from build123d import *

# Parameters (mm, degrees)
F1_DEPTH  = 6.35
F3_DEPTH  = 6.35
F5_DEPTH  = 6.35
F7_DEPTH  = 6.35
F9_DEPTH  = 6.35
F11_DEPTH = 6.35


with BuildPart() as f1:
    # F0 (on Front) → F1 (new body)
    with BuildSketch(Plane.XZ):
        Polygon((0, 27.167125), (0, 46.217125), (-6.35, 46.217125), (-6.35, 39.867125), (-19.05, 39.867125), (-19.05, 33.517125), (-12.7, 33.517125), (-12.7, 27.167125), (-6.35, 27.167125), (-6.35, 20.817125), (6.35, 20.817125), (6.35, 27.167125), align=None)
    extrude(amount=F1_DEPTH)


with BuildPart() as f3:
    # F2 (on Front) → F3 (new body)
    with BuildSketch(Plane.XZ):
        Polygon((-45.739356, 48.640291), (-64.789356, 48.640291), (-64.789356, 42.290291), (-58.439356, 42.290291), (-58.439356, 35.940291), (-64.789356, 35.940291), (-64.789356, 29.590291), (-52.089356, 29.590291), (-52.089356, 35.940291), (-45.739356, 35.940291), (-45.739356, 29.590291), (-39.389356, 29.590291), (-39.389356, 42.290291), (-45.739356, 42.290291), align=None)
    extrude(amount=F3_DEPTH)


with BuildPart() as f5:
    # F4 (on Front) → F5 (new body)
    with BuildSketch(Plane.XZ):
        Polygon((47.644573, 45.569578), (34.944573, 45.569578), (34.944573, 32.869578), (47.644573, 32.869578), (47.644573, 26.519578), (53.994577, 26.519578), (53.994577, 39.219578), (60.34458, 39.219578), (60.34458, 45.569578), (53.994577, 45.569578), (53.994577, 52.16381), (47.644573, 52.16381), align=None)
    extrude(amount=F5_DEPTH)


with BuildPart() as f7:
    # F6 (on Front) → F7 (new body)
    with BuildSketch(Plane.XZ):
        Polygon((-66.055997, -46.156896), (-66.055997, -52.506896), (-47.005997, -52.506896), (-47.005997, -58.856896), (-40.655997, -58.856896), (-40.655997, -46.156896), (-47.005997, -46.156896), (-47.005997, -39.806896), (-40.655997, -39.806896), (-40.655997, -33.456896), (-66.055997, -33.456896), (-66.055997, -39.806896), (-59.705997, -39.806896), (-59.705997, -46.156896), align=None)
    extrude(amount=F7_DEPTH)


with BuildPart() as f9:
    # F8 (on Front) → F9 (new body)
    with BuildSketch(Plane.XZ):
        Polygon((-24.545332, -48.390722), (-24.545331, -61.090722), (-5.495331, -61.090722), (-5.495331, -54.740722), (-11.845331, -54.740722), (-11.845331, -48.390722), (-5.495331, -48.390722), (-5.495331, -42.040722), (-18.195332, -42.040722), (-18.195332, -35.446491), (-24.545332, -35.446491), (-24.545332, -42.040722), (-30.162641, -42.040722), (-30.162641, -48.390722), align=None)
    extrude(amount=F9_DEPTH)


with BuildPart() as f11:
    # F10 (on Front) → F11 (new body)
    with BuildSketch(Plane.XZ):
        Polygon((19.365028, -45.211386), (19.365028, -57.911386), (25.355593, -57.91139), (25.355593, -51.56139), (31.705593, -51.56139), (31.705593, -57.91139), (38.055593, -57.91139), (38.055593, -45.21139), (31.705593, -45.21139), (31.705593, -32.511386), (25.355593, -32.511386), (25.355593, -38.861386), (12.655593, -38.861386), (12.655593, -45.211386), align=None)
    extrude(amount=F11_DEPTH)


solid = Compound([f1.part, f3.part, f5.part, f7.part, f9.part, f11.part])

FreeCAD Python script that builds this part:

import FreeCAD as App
import Part
import Sketcher
from FreeCAD import Vector
Q = App.Units.Quantity


def add_polygon(sketch, points):
    """Adds a closed chain of lines whose ends are joined by coincident constraints."""
    first, n = sketch.GeometryCount, len(points)
    for a, b in zip(points, points[1:] + points[:1]):
        sketch.addGeometry(Part.LineSegment(App.Vector(*a, 0), App.Vector(*b, 0)), False)
    for i in range(n):
        sketch.addConstraint(Sketcher.Constraint("Coincident", first + i, 2, first + (i + 1) % n, 1))

doc = App.newDocument("Part")
body = doc.addObject("PartDesign::Body", "Body")

# Sketch on XZ plane
sketch1 = body.newObject("Sketcher::SketchObject", "Sketch")
sketch1.AttachmentSupport = (doc.getObject("XZ_Plane"), [""])
sketch1.MapMode = "FlatFace"
add_polygon(sketch1, [(0, 27), (0, 46), (-6, 46), (-6, 40), (-19, 40), (-19, 34), (-13, 34), (-13, 27), (-6, 27), (-6, 21), (6, 21), (6, 27)])  # lines 0-11
sketch1.addConstraint([
    Sketcher.Constraint("Vertical", 0),
    Sketcher.Constraint("Horizontal", 1),
    Sketcher.Constraint("Vertical", 2),
    Sketcher.Constraint("Horizontal", 3),
    Sketcher.Constraint("Vertical", 4),
    Sketcher.Constraint("Horizontal", 5),
    Sketcher.Constraint("Vertical", 6),
    Sketcher.Constraint("Horizontal", 7),
    Sketcher.Constraint("Vertical", 8),
    Sketcher.Constraint("Horizontal", 9),
    Sketcher.Constraint("Vertical", 10),
    Sketcher.Constraint("Horizontal", 11),
    Sketcher.Constraint("Symmetric", 7, 2, 10, 2, -2),
    Sketcher.Constraint("PointOnObject", 0, 2, -2),
    Sketcher.Constraint("Vertical", 2, 2, 7, 2),
    Sketcher.Constraint("Equal", 1, 5),
    Sketcher.Constraint("Equal", 5, 7),
    Sketcher.Constraint("Equal", 11, 2),
    Sketcher.Constraint("Equal", 2, 4),
    Sketcher.Constraint("Equal", 4, 6),
    Sketcher.Constraint("Equal", 6, 8),
    Sketcher.Constraint("DistanceX", 3, 2, 3, 1, Q("0.5 in")),
    Sketcher.Constraint("DistanceY", -1, 1, 0, 2, Q("46.217125 mm")),
])
pad1 = body.newObject("PartDesign::Pad", "Pad")
pad1.Profile = sketch1
pad1.Length = Q("0.25 in")
body2 = doc.addObject("PartDesign::Body", "Body001")

# Sketch on XZ plane
sketch2 = body2.newObject("Sketcher::SketchObject", "Sketch001")
sketch2.AttachmentSupport = (doc.getObject("XZ_Plane001"), [""])
sketch2.MapMode = "FlatFace"
add_polygon(sketch2, [(-46, 49), (-65, 49), (-65, 42), (-58, 42), (-58, 36), (-65, 36), (-65, 30), (-52, 30), (-52, 36), (-46, 36), (-46, 30), (-39, 30), (-39, 42), (-46, 42)])  # lines 0-13
sketch2.addConstraint([
    Sketcher.Constraint("Horizontal", 0),
    Sketcher.Constraint("Vertical", 1),
    Sketcher.Constraint("Horizontal", 2),
    Sketcher.Constraint("Vertical", 3),
    Sketcher.Constraint("Horizontal", 4),
    Sketcher.Constraint("Vertical", 5),
    Sketcher.Constraint("Horizontal", 6),
    Sketcher.Constraint("Vertical", 7),
    Sketcher.Constraint("Horizontal", 8),
    Sketcher.Constraint("Vertical", 9),
    Sketcher.Constraint("Horizontal", 10),
    Sketcher.Constraint("Vertical", 11),
    Sketcher.Constraint("Horizontal", 12),
    Sketcher.Constraint("Vertical", 13),
    Sketcher.Constraint("Horizontal", 4, 2, 7, 2),
    Sketcher.Constraint("Horizontal", 6, 2, 9, 2),
    Sketcher.Constraint("Horizontal", 2, 2, 11, 2),
    Sketcher.Constraint("Vertical", 1, 2, 4, 2),
    Sketcher.Constraint("Vertical", 9, 2, 12, 2),
    Sketcher.Constraint("Equal", 4, 8),
    Sketcher.Constraint("Equal", 8, 10),
    Sketcher.Constraint("Equal", 12, 1),
    Sketcher.Constraint("Equal", 1, 3),
    Sketcher.Constraint("Equal", 3, 5),
    Sketcher.Constraint("Equal", 6, 11),
    Sketcher.Constraint("DistanceX", 6, 1, 6, 2, Q("0.5 in")),
    Sketcher.Constraint("DistanceY", -1, 1, 0, 2, Q("48.640291 mm")),
    Sketcher.Constraint("DistanceX", 0, 2, -1, 1, Q("64.789356 mm")),
])
pad2 = body2.newObject("PartDesign::Pad", "Pad001")
pad2.Profile = sketch2
pad2.Length = Q("0.25 in")
body3 = doc.addObject("PartDesign::Body", "Body002")

# Sketch on XZ plane
sketch3 = body3.newObject("Sketcher::SketchObject", "Sketch002")
sketch3.AttachmentSupport = (doc.getObject("XZ_Plane002"), [""])
sketch3.MapMode = "FlatFace"
add_polygon(sketch3, [(48, 46), (35, 46), (35, 33), (48, 33), (48, 27), (54, 27), (54, 39), (60, 39), (60, 46), (54, 46), (54, 52), (48, 52)])  # lines 0-11
sketch3.addConstraint([
    Sketcher.Constraint("Horizontal", 0),
    Sketcher.Constraint("Vertical", 1),
    Sketcher.Constraint("Horizontal", 2),
    Sketcher.Constraint("Vertical", 3),
    Sketcher.Constraint("Horizontal", 4),
    Sketcher.Constraint("Vertical", 5),
    Sketcher.Constraint("Horizontal", 6),
    Sketcher.Constraint("Vertical", 7),
    Sketcher.Constraint("Horizontal", 8),
    Sketcher.Constraint("Vertical", 9),
    Sketcher.Constraint("Horizontal", 10),
    Sketcher.Constraint("Vertical", 11),
    Sketcher.Constraint("Horizontal", 0, 2, 7, 2),
    Sketcher.Constraint("Vertical", 5, 2, 8, 2),
    Sketcher.Constraint("Vertical", 3, 2, 10, 2),
    Sketcher.Constraint("Equal", 4, 6),
    Sketcher.Constraint("Equal", 2, 1),
    Sketcher.Constraint("Equal", 1, 5),
    Sketcher.Constraint("DistanceX", 0, 2, 0, 1, Q("0.5 in")),
    Sketcher.Constraint("DistanceX", 4, 1, 4, 2, Q("0.2500002 in")),
    Sketcher.Constraint("DistanceY", 3, 2, 3, 1, Q("0.25 in")),
    Sketcher.Constraint("DistanceY", 9, 1, 9, 2, Q("6.594232 mm")),
    Sketcher.Constraint("DistanceX", -1, 1, 6, 2, Q("60.34458 mm")),
    Sketcher.Constraint("DistanceY", -1, 1, 9, 2, Q("52.16381 mm")),
])
pad3 = body3.newObject("PartDesign::Pad", "Pad002")
pad3.Profile = sketch3
pad3.Length = Q("0.25 in")
body4 = doc.addObject("PartDesign::Body", "Body003")

# Sketch on XZ plane
sketch4 = body4.newObject("Sketcher::SketchObject", "Sketch003")
sketch4.AttachmentSupport = (doc.getObject("XZ_Plane003"), [""])
sketch4.MapMode = "FlatFace"
add_polygon(sketch4, [(-66, -46), (-66, -53), (-47, -53), (-47, -59), (-41, -59), (-41, -46), (-47, -46), (-47, -40), (-41, -40), (-41, -33), (-66, -33), (-66, -40), (-60, -40), (-60, -46)])  # lines 0-13
sketch4.addConstraint([
    Sketcher.Constraint("Vertical", 0),
    Sketcher.Constraint("Horizontal", 1),
    Sketcher.Constraint("Vertical", 2),
    Sketcher.Constraint("Horizontal", 3),
    Sketcher.Constraint("Vertical", 4),
    Sketcher.Constraint("Horizontal", 5),
    Sketcher.Constraint("Vertical", 6),
    Sketcher.Constraint("Horizontal", 7),
    Sketcher.Constraint("Vertical", 8),
    Sketcher.Constraint("Horizontal", 9),
    Sketcher.Constraint("Vertical", 10),
    Sketcher.Constraint("Horizontal", 11),
    Sketcher.Constraint("Vertical", 12),
    Sketcher.Constraint("Horizontal", 13),
    Sketcher.Constraint("Horizontal", 7, 2, 10, 2),
    Sketcher.Constraint("Horizontal", 5, 2, 12, 2),
    Sketcher.Constraint("Vertical", 2, 2, 5, 2),
    Sketcher.Constraint("Vertical", 4, 2, 7, 2),
    Sketcher.Constraint("Vertical", 0, 2, 9, 2),
    Sketcher.Constraint("Equal", 7, 11),
    Sketcher.Constraint("Equal", 13, 0),
    Sketcher.Constraint("Equal", 0, 2),
    Sketcher.Constraint("Equal", 2, 6),
    Sketcher.Constraint("Equal", 6, 8),
    Sketcher.Constraint("DistanceX", 9, 2, 9, 1, Q("1 in")),
    Sketcher.Constraint("DistanceY", 4, 1, 4, 2, Q("0.5 in")),
    Sketcher.Constraint("DistanceX", 0, 2, -1, 1, Q("66.055997 mm")),
    Sketcher.Constraint("DistanceY", 0, 2, -1, 1, Q("52.506896 mm")),
])
pad4 = body4.newObject("PartDesign::Pad", "Pad003")
pad4.Profile = sketch4
pad4.Length = Q("0.25 in")
body5 = doc.addObject("PartDesign::Body", "Body004")

# Sketch on XZ plane
sketch5 = body5.newObject("Sketcher::SketchObject", "Sketch004")
sketch5.AttachmentSupport = (doc.getObject("XZ_Plane004"), [""])
sketch5.MapMode = "FlatFace"
add_polygon(sketch5, [(-25, -48), (-25, -61), (-5, -61), (-5, -55), (-12, -55), (-12, -48), (-5, -48), (-5, -42), (-18, -42), (-18, -35), (-25, -35), (-25, -42), (-30, -42), (-30, -48)])  # lines 0-13
sketch5.addConstraint([
    Sketcher.Constraint("Vertical", 0),
    Sketcher.Constraint("Horizontal", 1),
    Sketcher.Constraint("Vertical", 2),
    Sketcher.Constraint("Horizontal", 3),
    Sketcher.Constraint("Vertical", 4),
    Sketcher.Constraint("Horizontal", 5),
    Sketcher.Constraint("Vertical", 6),
    Sketcher.Constraint("Horizontal", 7),
    Sketcher.Constraint("Vertical", 8),
    Sketcher.Constraint("Horizontal", 9),
    Sketcher.Constraint("Vertical", 10),
    Sketcher.Constraint("Horizontal", 11),
    Sketcher.Constraint("Vertical", 12),
    Sketcher.Constraint("Horizontal", 13),
    Sketcher.Constraint("Horizontal", 7, 2, 10, 2),
    Sketcher.Constraint("Horizontal", 5, 2, 12, 2),
    Sketcher.Constraint("Vertical", 2, 2, 5, 2),
    Sketcher.Constraint("Vertical", 0, 2, 9, 2),
    Sketcher.Constraint("Equal", 5, 9),
    Sketcher.Constraint("Equal", 7, 0),
    Sketcher.Constraint("Equal", 9, 2),
    Sketcher.Constraint("Equal", 2, 4),
    Sketcher.Constraint("Equal", 4, 6),
    Sketcher.Constraint("DistanceX", 7, 2, 7, 1, Q("0.5 in")),
    Sketcher.Constraint("DistanceX", 11, 2, 11, 1, Q("5.617309 mm")),
    Sketcher.Constraint("DistanceY", 8, 1, 8, 2, Q("6.594231 mm")),
    Sketcher.Constraint("DistanceX", 0, 2, -1, 1, Q("24.545331 mm")),
    Sketcher.Constraint("DistanceY", 2, 2, -1, 1, Q("54.740722 mm")),
])
pad5 = body5.newObject("PartDesign::Pad", "Pad004")
pad5.Profile = sketch5
pad5.Length = Q("0.25 in")
body6 = doc.addObject("PartDesign::Body", "Body005")

# Sketch on XZ plane
sketch6 = body6.newObject("Sketcher::SketchObject", "Sketch005")
sketch6.AttachmentSupport = (doc.getObject("XZ_Plane005"), [""])
sketch6.MapMode = "FlatFace"
add_polygon(sketch6, [(19, -45), (19, -58), (25, -58), (25, -52), (32, -52), (32, -58), (38, -58), (38, -45), (32, -45), (32, -33), (25, -33), (25, -39), (13, -39), (13, -45)])  # lines 0-13
sketch6.addConstraint([
    Sketcher.Constraint("Vertical", 0),
    Sketcher.Constraint("Vertical", 2),
    Sketcher.Constraint("Horizontal", 3),
    Sketcher.Constraint("Vertical", 4),
    Sketcher.Constraint("Horizontal", 5),
    Sketcher.Constraint("Vertical", 6),
    Sketcher.Constraint("Horizontal", 7),
    Sketcher.Constraint("Vertical", 8),
    Sketcher.Constraint("Horizontal", 9),
    Sketcher.Constraint("Vertical", 10),
    Sketcher.Constraint("Horizontal", 11),
    Sketcher.Constraint("Vertical", 12),
    Sketcher.Constraint("Horizontal", 13),
    Sketcher.Constraint("Horizontal", 1, 2, 4, 2),
    Sketcher.Constraint("Vertical", 4, 2, 7, 2),
    Sketcher.Constraint("Vertical", 2, 2, 9, 2),
    Sketcher.Constraint("Equal", 3, 5),
    Sketcher.Constraint("Equal", 11, 0),
    Sketcher.Constraint("Equal", 9, 2),
    Sketcher.Constraint("Equal", 0, 6),
    Sketcher.Constraint("Equal", 4, 10),
    Sketcher.Constraint("Equal", 10, 12),
    Sketcher.Constraint("DistanceX", 11, 2, 11, 1, Q("0.5 in")),
    Sketcher.Constraint("DistanceY", 8, 1, 8, 2, Q("0.5000002 in")),
    Sketcher.Constraint("DistanceX", 3, 1, 3, 2, Q("0.25 in")),
    Sketcher.Constraint("DistanceX", 13, 1, 13, 2, Q("6.709435 mm")),
    Sketcher.Constraint("DistanceY", 1, 2, -1, 1, Q("57.91139 mm")),
    Sketcher.Constraint("DistanceX", -1, 1, 0, 2, Q("19.365028 mm")),
])
pad6 = body6.newObject("PartDesign::Pad", "Pad005")
pad6.Profile = sketch6
pad6.Length = Q("0.25 in")

doc.recompute()
